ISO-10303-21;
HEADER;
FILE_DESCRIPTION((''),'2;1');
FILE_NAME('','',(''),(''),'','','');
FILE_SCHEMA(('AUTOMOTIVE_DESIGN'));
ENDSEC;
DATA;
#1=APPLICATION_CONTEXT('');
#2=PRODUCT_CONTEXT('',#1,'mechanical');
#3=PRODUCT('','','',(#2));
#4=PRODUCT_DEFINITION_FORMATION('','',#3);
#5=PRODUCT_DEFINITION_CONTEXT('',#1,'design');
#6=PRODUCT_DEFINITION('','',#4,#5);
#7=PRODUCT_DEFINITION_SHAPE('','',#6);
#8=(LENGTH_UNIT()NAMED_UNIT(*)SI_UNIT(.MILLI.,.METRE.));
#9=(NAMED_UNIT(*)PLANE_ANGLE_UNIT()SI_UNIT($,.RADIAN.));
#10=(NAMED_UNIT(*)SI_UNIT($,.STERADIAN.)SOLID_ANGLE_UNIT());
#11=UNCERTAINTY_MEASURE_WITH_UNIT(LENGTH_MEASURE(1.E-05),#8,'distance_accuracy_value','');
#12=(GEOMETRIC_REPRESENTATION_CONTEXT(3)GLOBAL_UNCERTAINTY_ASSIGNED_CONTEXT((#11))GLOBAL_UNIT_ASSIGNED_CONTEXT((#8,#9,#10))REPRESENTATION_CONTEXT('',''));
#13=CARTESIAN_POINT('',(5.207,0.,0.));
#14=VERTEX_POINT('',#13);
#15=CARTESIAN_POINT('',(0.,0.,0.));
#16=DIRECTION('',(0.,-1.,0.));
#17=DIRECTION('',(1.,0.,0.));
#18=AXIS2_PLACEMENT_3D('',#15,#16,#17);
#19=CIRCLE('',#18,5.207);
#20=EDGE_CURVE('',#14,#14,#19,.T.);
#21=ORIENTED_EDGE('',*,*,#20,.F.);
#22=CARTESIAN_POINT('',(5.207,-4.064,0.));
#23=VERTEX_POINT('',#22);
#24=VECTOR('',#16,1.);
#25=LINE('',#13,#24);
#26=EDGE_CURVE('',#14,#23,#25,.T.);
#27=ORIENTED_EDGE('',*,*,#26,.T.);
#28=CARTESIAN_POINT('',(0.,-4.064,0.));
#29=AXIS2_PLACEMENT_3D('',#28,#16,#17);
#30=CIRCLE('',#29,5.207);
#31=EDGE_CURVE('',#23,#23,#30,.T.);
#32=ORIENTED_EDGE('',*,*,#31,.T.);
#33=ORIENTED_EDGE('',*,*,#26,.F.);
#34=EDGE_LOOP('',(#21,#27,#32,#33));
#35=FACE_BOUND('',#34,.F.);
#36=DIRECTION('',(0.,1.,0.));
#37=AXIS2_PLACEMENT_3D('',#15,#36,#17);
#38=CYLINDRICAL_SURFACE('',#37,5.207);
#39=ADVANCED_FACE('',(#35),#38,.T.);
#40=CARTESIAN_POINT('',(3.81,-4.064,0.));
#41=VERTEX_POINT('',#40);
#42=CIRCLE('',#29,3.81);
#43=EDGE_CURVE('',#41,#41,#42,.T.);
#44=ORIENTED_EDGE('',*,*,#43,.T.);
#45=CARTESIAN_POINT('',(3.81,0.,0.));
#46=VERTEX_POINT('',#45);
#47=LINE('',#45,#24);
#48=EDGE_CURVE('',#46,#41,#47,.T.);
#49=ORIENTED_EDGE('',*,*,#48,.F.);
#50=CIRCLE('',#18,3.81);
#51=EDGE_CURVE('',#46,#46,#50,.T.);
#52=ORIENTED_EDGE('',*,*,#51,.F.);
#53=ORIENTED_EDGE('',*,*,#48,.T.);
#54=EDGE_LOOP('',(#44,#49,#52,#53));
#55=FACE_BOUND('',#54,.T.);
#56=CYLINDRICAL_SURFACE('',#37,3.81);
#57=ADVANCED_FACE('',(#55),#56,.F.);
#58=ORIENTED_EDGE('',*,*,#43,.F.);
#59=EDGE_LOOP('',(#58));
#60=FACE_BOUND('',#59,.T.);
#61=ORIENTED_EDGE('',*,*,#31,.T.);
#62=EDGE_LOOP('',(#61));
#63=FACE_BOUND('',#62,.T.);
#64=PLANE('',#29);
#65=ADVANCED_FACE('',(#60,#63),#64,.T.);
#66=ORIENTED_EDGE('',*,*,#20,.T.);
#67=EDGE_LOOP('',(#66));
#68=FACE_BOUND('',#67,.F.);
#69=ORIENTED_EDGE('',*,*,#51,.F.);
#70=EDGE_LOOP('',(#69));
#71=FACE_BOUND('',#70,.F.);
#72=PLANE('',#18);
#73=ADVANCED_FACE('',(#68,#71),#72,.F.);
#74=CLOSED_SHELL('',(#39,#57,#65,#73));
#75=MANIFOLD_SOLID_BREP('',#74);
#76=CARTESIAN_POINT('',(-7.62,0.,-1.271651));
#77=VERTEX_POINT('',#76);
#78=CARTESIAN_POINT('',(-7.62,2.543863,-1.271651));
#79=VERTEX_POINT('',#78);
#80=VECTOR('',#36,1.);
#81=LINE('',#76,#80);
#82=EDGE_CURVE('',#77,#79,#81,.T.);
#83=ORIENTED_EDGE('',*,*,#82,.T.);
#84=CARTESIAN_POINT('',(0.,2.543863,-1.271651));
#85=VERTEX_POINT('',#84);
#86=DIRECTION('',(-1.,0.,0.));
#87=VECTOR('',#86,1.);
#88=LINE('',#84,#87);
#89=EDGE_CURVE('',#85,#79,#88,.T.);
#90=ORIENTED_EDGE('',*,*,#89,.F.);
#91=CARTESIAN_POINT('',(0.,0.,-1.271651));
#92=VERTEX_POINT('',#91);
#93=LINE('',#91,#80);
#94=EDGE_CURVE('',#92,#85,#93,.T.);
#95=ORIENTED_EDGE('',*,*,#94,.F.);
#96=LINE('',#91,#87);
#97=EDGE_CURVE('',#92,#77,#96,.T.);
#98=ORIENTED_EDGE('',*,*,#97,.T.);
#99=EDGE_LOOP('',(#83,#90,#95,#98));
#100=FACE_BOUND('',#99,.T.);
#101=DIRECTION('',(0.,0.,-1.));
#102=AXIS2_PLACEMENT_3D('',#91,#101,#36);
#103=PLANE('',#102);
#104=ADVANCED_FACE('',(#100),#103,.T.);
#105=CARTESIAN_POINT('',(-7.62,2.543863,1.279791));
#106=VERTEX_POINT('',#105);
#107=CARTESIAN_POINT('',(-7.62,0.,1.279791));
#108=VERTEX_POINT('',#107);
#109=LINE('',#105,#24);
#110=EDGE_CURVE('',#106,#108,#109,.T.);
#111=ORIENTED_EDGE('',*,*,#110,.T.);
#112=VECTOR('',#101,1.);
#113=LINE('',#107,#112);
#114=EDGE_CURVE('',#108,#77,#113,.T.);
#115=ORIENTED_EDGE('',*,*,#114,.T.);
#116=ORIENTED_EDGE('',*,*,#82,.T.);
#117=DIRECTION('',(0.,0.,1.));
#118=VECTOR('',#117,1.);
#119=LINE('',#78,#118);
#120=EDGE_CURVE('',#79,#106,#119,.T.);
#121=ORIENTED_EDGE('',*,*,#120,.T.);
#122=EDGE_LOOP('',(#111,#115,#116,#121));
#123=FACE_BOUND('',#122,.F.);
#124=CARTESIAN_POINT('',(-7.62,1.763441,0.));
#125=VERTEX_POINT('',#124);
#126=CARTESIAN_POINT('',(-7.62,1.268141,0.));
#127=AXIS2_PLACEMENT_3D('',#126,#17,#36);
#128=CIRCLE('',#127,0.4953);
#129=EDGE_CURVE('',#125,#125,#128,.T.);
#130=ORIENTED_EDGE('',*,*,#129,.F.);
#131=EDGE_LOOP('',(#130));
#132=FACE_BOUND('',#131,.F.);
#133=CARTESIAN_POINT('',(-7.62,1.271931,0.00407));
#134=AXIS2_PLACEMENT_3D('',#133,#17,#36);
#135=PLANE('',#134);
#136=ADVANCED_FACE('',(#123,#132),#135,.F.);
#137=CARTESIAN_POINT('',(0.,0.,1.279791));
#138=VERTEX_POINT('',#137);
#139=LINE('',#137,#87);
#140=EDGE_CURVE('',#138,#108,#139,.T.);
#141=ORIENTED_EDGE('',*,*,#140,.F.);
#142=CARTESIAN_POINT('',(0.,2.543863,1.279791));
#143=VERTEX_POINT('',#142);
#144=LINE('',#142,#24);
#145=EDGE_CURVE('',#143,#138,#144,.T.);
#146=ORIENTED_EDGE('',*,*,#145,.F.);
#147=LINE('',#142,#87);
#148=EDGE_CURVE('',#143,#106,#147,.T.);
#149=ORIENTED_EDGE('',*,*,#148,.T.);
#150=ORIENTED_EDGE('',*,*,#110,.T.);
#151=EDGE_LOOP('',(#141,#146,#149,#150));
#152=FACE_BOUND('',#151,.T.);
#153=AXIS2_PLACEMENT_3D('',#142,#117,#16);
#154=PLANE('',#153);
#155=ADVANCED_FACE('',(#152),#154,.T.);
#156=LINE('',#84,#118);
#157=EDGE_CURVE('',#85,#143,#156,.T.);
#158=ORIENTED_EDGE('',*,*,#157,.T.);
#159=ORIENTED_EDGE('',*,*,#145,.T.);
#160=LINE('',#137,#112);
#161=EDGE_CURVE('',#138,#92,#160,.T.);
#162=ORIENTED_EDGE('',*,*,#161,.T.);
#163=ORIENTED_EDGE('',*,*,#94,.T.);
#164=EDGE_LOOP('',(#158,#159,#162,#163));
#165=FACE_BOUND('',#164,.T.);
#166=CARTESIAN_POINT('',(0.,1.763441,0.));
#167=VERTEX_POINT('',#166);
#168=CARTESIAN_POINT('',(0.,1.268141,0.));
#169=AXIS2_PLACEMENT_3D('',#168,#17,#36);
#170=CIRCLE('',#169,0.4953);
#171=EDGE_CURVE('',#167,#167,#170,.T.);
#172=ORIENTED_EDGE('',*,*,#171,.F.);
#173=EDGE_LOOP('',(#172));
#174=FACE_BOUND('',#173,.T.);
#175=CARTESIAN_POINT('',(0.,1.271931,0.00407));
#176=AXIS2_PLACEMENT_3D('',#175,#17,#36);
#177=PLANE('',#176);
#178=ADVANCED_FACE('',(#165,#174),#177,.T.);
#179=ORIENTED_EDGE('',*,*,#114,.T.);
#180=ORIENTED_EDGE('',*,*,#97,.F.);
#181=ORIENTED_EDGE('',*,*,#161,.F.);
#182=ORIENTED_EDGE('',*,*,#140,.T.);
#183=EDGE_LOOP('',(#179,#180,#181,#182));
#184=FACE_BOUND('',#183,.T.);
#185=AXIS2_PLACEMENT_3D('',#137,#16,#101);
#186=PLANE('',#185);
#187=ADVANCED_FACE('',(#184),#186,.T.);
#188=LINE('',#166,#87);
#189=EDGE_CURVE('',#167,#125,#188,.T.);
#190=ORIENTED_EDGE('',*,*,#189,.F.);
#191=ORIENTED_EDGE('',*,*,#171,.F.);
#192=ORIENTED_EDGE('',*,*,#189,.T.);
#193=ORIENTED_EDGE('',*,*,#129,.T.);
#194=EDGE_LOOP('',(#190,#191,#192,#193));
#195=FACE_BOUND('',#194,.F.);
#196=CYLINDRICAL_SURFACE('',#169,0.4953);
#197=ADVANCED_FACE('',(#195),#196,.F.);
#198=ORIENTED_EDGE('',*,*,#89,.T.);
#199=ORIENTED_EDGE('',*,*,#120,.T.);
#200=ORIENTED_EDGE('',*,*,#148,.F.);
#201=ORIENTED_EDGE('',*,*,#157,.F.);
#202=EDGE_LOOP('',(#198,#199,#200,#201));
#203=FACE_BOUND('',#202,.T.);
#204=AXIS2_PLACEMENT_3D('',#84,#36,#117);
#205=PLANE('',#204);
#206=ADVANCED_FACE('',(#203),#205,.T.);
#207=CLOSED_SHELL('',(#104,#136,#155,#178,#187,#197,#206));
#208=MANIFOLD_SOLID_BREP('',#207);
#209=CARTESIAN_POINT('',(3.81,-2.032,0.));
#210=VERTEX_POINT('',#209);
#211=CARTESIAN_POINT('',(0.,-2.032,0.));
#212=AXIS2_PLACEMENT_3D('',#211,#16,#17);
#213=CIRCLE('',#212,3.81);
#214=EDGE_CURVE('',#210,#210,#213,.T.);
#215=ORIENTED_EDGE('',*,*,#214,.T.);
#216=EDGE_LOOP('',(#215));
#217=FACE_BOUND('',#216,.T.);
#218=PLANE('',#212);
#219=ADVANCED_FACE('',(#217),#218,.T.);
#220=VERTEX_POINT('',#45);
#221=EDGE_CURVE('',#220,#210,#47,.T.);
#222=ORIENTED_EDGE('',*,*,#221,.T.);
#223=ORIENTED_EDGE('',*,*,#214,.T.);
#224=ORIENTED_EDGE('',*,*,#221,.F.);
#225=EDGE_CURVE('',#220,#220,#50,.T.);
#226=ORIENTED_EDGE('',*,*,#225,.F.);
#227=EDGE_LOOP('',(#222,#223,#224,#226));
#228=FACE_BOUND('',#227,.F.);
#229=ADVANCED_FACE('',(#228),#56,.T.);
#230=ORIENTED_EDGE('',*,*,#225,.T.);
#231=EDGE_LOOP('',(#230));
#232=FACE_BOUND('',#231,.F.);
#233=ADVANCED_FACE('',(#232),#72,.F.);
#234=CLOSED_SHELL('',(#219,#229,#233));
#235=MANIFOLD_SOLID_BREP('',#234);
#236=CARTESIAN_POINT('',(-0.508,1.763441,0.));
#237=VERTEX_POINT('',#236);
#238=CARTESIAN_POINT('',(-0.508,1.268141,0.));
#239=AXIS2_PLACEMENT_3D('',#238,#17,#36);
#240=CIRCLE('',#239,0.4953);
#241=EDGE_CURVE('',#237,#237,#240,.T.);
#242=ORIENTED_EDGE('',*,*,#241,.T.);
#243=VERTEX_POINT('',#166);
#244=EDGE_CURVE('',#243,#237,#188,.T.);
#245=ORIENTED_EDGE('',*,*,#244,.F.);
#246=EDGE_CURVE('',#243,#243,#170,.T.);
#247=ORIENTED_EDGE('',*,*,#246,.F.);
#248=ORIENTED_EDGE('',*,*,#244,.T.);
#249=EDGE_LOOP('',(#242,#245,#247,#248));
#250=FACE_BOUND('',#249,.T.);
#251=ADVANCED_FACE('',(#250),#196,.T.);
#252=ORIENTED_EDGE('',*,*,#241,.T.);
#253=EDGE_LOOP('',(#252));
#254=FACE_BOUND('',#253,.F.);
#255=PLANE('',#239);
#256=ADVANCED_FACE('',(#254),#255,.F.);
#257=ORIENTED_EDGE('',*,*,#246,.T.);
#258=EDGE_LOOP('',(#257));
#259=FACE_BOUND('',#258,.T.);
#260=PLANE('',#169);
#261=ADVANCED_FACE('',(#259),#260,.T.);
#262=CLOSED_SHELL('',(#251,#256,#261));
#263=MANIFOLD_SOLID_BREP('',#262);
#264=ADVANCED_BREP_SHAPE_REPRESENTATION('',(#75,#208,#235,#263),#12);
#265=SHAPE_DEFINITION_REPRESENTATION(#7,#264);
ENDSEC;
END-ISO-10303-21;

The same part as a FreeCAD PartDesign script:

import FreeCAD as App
import Part
import Sketcher
from FreeCAD import Vector
Q = App.Units.Quantity


def add_polygon(sketch, points):
    """Adds a closed chain of lines whose ends are joined by coincident constraints."""
    first, n = sketch.GeometryCount, len(points)
    for a, b in zip(points, points[1:] + points[:1]):
        sketch.addGeometry(Part.LineSegment(App.Vector(*a, 0), App.Vector(*b, 0)), False)
    for i in range(n):
        sketch.addConstraint(Sketcher.Constraint("Coincident", first + i, 2, first + (i + 1) % n, 1))

doc = App.newDocument("Part")
body = doc.addObject("PartDesign::Body", "Body")

# Sketch on XZ plane
sketch1 = body.newObject("Sketcher::SketchObject", "Sketch")
sketch1.AttachmentSupport = (doc.getObject("XZ_Plane"), [""])
sketch1.MapMode = "FlatFace"
sketch1.addGeometry(Part.Circle(Vector(0, 0, 0), Vector(0, 0, 1), 5.207), False)
sketch1.addGeometry(Part.Circle(Vector(0, 0, 0), Vector(0, 0, 1), 3.81), False)
sketch1.addConstraint(Sketcher.Constraint("Coincident", 0, 3, -1, 1))
sketch1.addConstraint(Sketcher.Constraint("Coincident", 1, 3, -1, 1))
sketch1.addConstraint(Sketcher.Constraint("Diameter", 1, Q("0.3 in")))
sketch1.addConstraint(Sketcher.Constraint("Diameter", 0, Q("0.41 in")))
pad1 = body.newObject("PartDesign::Pad", "Pad")
pad1.Profile = sketch1
pad1.Length = Q("0.16 in")
body2 = doc.addObject("PartDesign::Body", "Body001")

# Sketch on XZ plane
sketch2 = body2.newObject("Sketcher::SketchObject", "Sketch001")
sketch2.AttachmentSupport = (doc.getObject("XZ_Plane001"), [""])
sketch2.MapMode = "FlatFace"
sketch2.addGeometry(Part.Circle(Vector(0, 0, 0), Vector(0, 0, 1), 3.81), False)
sketch2.addConstraint(Sketcher.Constraint("Coincident", 0, 3, -1, 1))
sketch2.addConstraint(Sketcher.Constraint("Diameter", 0, Q("0.3 in")))
pad2 = body2.newObject("PartDesign::Pad", "Pad001")
pad2.Profile = sketch2
pad2.Length = Q("0.08 in")
body3 = doc.addObject("PartDesign::Body", "Body002")

# Sketch on YZ plane
sketch3 = body3.newObject("Sketcher::SketchObject", "Sketch002")
sketch3.AttachmentSupport = (doc.getObject("YZ_Plane002"), [""])
sketch3.MapMode = "FlatFace"
sketch3.addGeometry(Part.Circle(Vector(1.268141, 0, 0), Vector(0, 0, 1), 0.4953), False)
sketch3.addConstraint(Sketcher.Constraint("PointOnObject", 0, 3, -1))
sketch3.addConstraint(Sketcher.Constraint("Diameter", 0, Q("0.039 in")))
sketch3.addConstraint(Sketcher.Constraint("DistanceX", -1, 1, 0, 3, Q("1.268141 mm")))
pad3 = body3.newObject("PartDesign::Pad", "Pad002")
pad3.Profile = sketch3
pad3.Length = Q("0.02 in")
pad3.Reversed = True
body4 = doc.addObject("PartDesign::Body", "Body003")

# Sketch on YZ plane
sketch4 = body4.newObject("Sketcher::SketchObject", "Sketch003")
sketch4.AttachmentSupport = (doc.getObject("YZ_Plane003"), [""])
sketch4.MapMode = "FlatFace"
add_polygon(sketch4, [(0, 1.279791), (0, -1.271651), (2.543863, -1.271651), (2.543863, 1.279791)])  # lines 0-3
sketch4.addGeometry(Part.Circle(Vector(1.268141, 0, 0), Vector(0, 0, 1), 0.4953), False)  # 4
sketch4.addConstraint(Sketcher.Constraint("Vertical", 0))
sketch4.addConstraint(Sketcher.Constraint("Horizontal", 1))
sketch4.addConstraint(Sketcher.Constraint("Vertical", 2))
sketch4.addConstraint(Sketcher.Constraint("Horizontal", 3))
sketch4.addConstraint(Sketcher.Constraint("PointOnObject", 4, 3, -1))
sketch4.addConstraint(Sketcher.Constraint("PointOnObject", 0, 2, -2))
sketch4.addConstraint(Sketcher.Constraint("Diameter", 4, Q("0.039 in")))
sketch4.addConstraint(Sketcher.Constraint("DistanceY", 0, 2, 0, 1, Q("2.551442 mm")))
sketch4.addConstraint(Sketcher.Constraint("DistanceX", 1, 1, 1, 2, Q("2.543863 mm")))
sketch4.addConstraint(Sketcher.Constraint("DistanceX", -1, 1, 4, 3, Q("1.268141 mm")))
sketch4.addConstraint(Sketcher.Constraint("DistanceY", 0, 2, -1, 1, Q("1.271651 mm")))
pad4 = body4.newObject("PartDesign::Pad", "Pad003")
pad4.Profile = sketch4
pad4.Length = Q("0.3 in")
pad4.Reversed = True

doc.recompute()
